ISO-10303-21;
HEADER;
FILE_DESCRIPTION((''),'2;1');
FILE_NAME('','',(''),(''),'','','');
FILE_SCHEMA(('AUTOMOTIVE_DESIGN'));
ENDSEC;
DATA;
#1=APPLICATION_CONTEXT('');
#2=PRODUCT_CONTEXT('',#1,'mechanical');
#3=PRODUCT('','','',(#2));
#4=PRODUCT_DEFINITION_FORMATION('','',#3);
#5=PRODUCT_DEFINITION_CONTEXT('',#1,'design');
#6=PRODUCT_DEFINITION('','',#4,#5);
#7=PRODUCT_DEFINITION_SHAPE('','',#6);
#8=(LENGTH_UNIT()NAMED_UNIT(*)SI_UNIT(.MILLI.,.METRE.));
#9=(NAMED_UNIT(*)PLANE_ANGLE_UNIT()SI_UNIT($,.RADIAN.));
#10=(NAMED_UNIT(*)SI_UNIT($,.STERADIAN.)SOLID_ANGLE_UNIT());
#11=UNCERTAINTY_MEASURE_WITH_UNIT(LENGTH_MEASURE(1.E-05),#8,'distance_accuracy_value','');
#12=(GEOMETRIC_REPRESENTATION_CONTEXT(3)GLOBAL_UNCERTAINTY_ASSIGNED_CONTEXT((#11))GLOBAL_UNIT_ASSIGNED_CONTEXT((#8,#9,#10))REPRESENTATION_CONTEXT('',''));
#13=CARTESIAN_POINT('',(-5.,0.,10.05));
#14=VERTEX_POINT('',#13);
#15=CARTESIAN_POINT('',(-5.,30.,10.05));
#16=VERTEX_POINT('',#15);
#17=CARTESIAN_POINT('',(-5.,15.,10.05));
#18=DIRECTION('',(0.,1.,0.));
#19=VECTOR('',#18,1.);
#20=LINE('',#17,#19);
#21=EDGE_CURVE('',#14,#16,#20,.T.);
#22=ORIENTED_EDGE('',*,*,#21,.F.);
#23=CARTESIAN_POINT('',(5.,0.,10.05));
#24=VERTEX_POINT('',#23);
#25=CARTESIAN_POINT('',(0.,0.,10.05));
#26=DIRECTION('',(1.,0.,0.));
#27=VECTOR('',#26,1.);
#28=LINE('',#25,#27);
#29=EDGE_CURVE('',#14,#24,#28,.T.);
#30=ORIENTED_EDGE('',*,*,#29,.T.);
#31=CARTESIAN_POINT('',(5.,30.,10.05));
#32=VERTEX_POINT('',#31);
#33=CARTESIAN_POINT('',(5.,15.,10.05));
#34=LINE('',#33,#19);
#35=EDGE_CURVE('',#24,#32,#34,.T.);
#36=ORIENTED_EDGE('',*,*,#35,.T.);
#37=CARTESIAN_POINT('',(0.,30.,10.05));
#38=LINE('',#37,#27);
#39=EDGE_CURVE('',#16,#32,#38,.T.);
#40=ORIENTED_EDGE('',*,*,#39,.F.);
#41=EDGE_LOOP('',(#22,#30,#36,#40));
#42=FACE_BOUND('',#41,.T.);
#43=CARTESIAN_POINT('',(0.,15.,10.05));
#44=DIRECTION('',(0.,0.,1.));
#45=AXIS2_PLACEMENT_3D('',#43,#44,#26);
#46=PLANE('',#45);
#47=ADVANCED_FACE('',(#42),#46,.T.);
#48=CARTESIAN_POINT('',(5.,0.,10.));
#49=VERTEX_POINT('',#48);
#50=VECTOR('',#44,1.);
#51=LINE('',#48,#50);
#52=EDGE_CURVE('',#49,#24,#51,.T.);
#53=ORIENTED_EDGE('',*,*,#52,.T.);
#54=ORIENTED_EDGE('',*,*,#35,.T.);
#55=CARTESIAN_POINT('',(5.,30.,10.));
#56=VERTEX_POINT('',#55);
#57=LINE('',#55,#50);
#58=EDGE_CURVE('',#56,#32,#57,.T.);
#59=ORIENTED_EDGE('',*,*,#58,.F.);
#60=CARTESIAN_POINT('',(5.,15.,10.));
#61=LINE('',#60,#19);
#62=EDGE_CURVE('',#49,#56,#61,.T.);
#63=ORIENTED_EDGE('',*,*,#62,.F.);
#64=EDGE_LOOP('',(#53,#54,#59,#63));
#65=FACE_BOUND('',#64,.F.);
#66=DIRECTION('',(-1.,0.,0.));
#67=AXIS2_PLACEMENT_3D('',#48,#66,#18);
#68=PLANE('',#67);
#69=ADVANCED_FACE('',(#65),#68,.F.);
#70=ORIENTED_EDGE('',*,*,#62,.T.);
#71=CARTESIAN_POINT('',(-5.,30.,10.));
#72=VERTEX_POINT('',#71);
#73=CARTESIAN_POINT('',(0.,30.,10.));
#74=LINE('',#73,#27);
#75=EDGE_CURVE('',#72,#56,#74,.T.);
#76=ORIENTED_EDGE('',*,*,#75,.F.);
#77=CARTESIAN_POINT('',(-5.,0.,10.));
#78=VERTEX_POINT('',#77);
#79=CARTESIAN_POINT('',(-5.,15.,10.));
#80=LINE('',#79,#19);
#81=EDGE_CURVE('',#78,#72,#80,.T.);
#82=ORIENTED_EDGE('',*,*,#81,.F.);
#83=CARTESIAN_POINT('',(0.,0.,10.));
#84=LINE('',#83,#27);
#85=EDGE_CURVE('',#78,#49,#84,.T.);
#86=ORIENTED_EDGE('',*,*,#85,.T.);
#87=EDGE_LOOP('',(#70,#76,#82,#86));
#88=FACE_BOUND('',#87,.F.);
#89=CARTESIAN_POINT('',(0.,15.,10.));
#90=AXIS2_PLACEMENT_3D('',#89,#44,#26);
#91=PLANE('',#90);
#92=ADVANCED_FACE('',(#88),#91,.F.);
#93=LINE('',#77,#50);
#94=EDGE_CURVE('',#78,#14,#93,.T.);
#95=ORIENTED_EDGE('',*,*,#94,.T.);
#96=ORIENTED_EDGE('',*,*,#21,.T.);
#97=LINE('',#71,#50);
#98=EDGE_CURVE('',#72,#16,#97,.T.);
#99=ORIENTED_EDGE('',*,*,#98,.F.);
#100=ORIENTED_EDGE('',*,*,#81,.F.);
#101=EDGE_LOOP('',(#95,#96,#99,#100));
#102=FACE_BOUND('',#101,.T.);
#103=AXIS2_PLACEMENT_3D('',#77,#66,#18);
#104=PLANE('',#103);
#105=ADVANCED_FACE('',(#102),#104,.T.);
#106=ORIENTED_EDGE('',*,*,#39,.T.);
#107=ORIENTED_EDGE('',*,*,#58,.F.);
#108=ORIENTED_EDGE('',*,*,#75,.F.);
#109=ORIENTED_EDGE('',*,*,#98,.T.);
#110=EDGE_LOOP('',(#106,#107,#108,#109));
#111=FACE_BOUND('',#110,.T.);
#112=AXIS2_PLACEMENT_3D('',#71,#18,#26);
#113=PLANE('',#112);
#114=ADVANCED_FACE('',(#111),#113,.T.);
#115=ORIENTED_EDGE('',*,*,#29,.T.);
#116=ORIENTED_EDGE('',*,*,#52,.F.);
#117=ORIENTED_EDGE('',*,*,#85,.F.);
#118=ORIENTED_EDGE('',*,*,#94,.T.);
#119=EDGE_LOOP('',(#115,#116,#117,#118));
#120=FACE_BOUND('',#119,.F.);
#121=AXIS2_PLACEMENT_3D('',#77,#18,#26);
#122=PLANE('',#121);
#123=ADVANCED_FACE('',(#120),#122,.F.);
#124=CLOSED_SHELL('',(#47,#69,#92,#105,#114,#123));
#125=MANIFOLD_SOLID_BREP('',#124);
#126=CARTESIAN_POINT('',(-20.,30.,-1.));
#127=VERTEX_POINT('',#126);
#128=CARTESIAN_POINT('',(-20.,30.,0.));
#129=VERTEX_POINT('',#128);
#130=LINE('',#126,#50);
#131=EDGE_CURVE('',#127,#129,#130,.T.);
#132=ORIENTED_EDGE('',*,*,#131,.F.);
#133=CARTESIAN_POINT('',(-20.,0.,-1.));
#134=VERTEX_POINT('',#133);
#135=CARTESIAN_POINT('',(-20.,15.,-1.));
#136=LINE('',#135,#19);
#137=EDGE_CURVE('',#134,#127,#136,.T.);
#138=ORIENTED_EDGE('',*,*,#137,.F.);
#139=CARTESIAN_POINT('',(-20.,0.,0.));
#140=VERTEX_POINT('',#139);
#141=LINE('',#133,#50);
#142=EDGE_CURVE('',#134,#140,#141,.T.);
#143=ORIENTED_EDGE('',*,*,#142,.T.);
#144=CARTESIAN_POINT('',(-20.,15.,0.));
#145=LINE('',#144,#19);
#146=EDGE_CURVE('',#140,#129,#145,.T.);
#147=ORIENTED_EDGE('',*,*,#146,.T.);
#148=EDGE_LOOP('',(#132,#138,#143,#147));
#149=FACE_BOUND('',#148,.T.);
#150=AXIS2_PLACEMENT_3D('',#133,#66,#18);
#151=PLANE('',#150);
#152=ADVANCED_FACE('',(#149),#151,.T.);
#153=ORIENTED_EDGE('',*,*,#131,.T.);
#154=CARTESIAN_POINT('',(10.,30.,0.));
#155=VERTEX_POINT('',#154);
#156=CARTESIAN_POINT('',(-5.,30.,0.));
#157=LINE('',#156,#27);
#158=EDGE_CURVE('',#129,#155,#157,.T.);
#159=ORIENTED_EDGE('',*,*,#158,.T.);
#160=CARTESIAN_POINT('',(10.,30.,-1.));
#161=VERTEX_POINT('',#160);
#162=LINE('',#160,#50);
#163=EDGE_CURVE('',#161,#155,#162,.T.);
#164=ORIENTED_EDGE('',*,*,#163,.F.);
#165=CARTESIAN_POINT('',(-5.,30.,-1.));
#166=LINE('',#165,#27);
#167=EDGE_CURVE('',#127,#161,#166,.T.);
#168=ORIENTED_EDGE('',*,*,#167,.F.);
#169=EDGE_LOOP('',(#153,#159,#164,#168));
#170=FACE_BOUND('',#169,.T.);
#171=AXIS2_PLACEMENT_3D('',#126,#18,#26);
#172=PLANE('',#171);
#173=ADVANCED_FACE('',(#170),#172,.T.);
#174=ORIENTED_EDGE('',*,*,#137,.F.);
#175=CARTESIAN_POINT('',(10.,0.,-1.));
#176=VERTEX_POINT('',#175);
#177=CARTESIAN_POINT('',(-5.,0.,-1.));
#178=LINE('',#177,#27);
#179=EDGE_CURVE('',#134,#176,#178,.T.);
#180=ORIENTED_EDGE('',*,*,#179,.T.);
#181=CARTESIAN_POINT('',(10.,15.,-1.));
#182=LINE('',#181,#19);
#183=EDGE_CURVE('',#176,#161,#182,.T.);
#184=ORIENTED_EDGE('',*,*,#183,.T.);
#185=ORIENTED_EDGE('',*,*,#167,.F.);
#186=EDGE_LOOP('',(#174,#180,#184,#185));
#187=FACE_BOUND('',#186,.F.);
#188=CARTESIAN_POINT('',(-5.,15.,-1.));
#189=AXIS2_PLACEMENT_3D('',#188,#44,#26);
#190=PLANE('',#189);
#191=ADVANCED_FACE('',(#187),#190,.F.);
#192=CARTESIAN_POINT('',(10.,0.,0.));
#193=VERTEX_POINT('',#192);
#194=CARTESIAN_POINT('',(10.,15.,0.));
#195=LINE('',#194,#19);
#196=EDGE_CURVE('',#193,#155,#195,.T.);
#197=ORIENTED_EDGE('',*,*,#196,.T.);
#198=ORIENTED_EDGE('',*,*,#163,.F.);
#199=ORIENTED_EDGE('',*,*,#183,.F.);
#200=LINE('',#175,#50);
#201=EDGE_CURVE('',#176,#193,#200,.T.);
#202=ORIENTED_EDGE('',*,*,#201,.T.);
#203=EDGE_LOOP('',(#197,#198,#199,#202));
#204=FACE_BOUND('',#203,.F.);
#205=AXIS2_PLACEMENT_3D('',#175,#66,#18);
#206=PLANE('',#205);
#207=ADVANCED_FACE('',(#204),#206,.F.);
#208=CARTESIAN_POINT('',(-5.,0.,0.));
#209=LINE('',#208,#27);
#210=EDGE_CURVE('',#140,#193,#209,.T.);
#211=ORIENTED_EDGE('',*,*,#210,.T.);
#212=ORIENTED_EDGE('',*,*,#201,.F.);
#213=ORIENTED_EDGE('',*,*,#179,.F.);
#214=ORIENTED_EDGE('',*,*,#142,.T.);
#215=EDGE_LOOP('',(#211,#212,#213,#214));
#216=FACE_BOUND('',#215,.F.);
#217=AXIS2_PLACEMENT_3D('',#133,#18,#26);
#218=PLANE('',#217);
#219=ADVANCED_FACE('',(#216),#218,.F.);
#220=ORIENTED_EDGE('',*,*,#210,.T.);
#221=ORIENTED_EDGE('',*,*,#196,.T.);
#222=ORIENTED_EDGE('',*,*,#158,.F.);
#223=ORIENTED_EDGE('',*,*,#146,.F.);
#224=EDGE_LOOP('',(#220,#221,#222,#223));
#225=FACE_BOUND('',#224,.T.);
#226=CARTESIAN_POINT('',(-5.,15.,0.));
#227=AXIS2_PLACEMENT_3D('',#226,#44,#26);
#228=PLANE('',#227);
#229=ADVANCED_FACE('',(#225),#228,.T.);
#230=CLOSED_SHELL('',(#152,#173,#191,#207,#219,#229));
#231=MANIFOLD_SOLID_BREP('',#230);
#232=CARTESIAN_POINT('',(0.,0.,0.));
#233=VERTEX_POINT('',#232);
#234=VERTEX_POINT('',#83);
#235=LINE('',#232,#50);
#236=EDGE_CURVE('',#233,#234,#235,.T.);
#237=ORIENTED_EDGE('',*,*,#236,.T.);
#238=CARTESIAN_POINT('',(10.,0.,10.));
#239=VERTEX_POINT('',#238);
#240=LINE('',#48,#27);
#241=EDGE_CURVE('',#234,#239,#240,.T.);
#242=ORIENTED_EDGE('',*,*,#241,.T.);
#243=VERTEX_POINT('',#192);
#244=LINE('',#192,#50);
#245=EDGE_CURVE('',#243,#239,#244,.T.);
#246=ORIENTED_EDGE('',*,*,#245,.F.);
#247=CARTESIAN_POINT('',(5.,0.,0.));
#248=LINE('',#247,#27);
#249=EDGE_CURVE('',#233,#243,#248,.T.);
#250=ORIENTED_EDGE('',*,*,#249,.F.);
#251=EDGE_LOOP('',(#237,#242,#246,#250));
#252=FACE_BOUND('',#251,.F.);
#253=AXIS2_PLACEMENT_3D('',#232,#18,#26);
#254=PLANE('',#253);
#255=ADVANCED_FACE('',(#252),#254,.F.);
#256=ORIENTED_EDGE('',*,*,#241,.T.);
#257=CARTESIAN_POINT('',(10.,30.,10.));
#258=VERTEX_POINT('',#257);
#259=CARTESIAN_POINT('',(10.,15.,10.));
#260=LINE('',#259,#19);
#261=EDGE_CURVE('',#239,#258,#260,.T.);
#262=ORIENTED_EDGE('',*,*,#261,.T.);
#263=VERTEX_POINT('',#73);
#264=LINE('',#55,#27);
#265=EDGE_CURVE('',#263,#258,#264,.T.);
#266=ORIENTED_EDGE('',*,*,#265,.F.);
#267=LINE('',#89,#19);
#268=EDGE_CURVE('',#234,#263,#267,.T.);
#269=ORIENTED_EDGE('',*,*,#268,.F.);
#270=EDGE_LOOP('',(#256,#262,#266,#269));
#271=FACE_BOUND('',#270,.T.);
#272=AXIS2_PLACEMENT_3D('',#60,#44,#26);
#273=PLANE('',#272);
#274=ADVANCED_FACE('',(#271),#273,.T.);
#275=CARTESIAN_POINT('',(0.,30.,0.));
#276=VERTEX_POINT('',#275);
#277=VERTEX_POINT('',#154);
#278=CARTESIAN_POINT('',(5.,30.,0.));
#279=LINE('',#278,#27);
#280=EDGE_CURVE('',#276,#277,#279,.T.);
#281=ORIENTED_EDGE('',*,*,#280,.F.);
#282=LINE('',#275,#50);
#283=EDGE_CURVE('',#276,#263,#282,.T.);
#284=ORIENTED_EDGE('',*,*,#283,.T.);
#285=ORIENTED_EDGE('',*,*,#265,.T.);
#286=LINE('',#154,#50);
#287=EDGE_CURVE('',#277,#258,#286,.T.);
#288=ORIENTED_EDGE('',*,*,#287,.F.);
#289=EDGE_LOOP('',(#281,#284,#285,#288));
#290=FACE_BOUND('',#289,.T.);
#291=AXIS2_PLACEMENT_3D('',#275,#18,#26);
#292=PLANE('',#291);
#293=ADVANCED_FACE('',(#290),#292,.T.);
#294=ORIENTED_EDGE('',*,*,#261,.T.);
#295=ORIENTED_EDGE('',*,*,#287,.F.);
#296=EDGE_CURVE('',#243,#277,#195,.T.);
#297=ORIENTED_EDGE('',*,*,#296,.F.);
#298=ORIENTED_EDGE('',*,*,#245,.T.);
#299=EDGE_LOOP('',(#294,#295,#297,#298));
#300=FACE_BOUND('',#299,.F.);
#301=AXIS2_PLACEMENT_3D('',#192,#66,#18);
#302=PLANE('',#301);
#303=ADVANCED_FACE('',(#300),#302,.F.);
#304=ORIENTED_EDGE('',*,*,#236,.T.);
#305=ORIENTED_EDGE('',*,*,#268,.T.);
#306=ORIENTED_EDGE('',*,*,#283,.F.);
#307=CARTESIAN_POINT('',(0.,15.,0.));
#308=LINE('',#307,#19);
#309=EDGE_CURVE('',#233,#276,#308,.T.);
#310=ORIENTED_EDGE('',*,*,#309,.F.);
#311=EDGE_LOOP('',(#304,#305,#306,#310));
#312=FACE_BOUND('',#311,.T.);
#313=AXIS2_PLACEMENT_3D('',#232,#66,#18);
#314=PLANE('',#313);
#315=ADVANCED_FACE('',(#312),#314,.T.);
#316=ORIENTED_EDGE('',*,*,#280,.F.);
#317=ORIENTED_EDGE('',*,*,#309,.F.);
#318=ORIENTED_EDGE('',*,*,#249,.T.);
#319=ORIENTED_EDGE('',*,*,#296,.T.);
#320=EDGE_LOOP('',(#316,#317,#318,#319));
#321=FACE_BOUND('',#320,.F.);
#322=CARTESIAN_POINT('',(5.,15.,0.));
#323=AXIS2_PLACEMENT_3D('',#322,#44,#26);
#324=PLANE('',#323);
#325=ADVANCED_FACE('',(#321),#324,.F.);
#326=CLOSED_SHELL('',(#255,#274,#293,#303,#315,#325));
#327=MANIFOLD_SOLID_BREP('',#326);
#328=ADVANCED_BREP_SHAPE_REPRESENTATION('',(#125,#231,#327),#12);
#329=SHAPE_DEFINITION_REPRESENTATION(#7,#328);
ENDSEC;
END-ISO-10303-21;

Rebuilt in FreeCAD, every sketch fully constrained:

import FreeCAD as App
import Part
import Sketcher

V = App.Vector
Q = App.Units.Quantity


def add_polygon(sketch, points):
    """Adds a closed chain of lines whose ends are joined by coincident constraints."""
    first, n = sketch.GeometryCount, len(points)
    for a, b in zip(points, points[1:] + points[:1]):
        sketch.addGeometry(Part.LineSegment(App.Vector(*a, 0), App.Vector(*b, 0)), False)
    for i in range(n):
        sketch.addConstraint(Sketcher.Constraint("Coincident", first + i, 2, first + (i + 1) % n, 1))

doc = App.newDocument("Part")
params = doc.addObject("Spreadsheet::Sheet", "Params")
for row, (alias, value) in enumerate([
    ("sketch1_width", "10 mm"),
    ("sketch1_height", "30 mm"),
    ("pad1_length", "0.05 mm"),
    ("sketch2_width", "10 mm"),
    ("sketch2_height", "30 mm"),
    ("pad2_length", "10 mm"),
    ("sketch3_width", "30 mm"),
    ("pad3_length", "1 mm"),
], start=1):
    params.set(f"A{row}", alias)
    params.set(f"B{row}", "=" + value)
    params.setAlias(f"B{row}", alias)

body = doc.addObject("PartDesign::Body", "Body")

sketch1 = body.newObject("Sketcher::SketchObject", "Sketch")
sketch1.AttachmentSupport = (doc.getObject("XY_Plane"), [""])
sketch1.MapMode = "FlatFace"
sketch1.AttachmentOffset = App.Placement(V(0, 0, 10), App.Rotation())
add_polygon(sketch1, [(-5, 30), (-5, 0), (5, 0), (5, 30)])
sketch1.addConstraint(Sketcher.Constraint("Vertical", 0))
sketch1.addConstraint(Sketcher.Constraint("Horizontal", 1))
sketch1.addConstraint(Sketcher.Constraint("Vertical", 2))
sketch1.addConstraint(Sketcher.Constraint("Horizontal", 3))
sketch1.addConstraint(Sketcher.Constraint("Symmetric", 0, 2, 1, 2, -1, 1))
sketch1.addConstraint(Sketcher.Constraint("DistanceX", 1, 1, 1, 2, Q("10 mm")))
sketch1.addConstraint(Sketcher.Constraint("DistanceY", 0, 2, 0, 1, Q("30 mm")))
sketch1.setExpression("Constraints[9]", "Params.sketch1_width")
sketch1.setExpression("Constraints[10]", "Params.sketch1_height")
pad1 = body.newObject("PartDesign::Pad", "Pad")
pad1.Profile = sketch1
pad1.setExpression("Length", "Params.pad1_length")
body2 = doc.addObject("PartDesign::Body", "Body001")

sketch2 = body2.newObject("Sketcher::SketchObject", "Sketch001")
sketch2.AttachmentSupport = (doc.getObject("XY_Plane001"), [""])
sketch2.MapMode = "FlatFace"
add_polygon(sketch2, [(0, 30), (0, 0), (10, 0), (10, 30)])
sketch2.addConstraint(Sketcher.Constraint("Vertical", 0))
sketch2.addConstraint(Sketcher.Constraint("Horizontal", 1))
sketch2.addConstraint(Sketcher.Constraint("Vertical", 2))
sketch2.addConstraint(Sketcher.Constraint("Horizontal", 3))
sketch2.addConstraint(Sketcher.Constraint("Coincident", 0, 2, -1, 1))
sketch2.addConstraint(Sketcher.Constraint("DistanceX", 1, 1, 1, 2, Q("10 mm")))
sketch2.addConstraint(Sketcher.Constraint("DistanceY", 0, 2, 0, 1, Q("30 mm")))
sketch2.setExpression("Constraints[9]", "Params.sketch2_width")
sketch2.setExpression("Constraints[10]", "Params.sketch2_height")
pad2 = body2.newObject("PartDesign::Pad", "Pad001")
pad2.Profile = sketch2
pad2.setExpression("Length", "Params.pad2_length")
body3 = doc.addObject("PartDesign::Body", "Body002")

sketch3 = body3.newObject("Sketcher::SketchObject", "Sketch002")
sketch3.AttachmentSupport = (doc.getObject("XY_Plane002"), [""])
sketch3.MapMode = "FlatFace"
sketch3.AttachmentOffset = App.Placement(V(0, 0, -1), App.Rotation())
add_polygon(sketch3, [(-20, 30), (-20, 0), (10, 0), (10, 30)])
sketch3.addConstraint(Sketcher.Constraint("Vertical", 0))
sketch3.addConstraint(Sketcher.Constraint("Horizontal", 1))
sketch3.addConstraint(Sketcher.Constraint("Vertical", 2))
sketch3.addConstraint(Sketcher.Constraint("Horizontal", 3))
sketch3.addConstraint(Sketcher.Constraint("PointOnObject", 0, 2, -1))
sketch3.addConstraint(Sketcher.Constraint("Equal", 3, 0))
sketch3.addConstraint(Sketcher.Constraint("DistanceX", 1, 1, 1, 2, Q("30 mm")))
sketch3.addConstraint(Sketcher.Constraint("DistanceX", 0, 2, -1, 1, Q("20 mm")))
sketch3.setExpression("Constraints[10]", "Params.sketch3_width")
pad3 = body3.newObject("PartDesign::Pad", "Pad002")
pad3.Profile = sketch3
pad3.setExpression("Length", "Params.pad3_length")

doc.recompute()
